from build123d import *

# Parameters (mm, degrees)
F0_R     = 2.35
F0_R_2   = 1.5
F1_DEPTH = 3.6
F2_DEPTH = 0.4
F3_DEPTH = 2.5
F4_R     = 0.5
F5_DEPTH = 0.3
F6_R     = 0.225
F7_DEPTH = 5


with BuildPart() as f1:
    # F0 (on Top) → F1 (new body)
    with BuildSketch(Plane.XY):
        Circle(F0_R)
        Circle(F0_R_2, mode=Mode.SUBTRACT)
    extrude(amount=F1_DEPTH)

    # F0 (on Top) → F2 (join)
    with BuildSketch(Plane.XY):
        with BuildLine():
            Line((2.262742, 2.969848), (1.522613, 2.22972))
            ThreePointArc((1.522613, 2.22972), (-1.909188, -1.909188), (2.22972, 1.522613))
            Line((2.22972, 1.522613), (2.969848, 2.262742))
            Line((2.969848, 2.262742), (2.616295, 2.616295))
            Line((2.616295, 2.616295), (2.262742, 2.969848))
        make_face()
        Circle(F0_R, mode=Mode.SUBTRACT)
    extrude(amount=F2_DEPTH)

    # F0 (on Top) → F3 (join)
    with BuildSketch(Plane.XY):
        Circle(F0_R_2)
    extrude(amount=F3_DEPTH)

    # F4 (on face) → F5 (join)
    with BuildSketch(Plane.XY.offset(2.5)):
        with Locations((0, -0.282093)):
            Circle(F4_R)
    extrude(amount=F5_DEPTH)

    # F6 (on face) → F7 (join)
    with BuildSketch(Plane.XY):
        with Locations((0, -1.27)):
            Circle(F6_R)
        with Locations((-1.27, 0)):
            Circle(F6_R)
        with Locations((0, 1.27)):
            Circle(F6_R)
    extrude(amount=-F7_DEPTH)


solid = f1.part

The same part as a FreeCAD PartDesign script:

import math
import FreeCAD as App
import Part
import Sketcher
from FreeCAD import Vector
Q = App.Units.Quantity

doc = App.newDocument("Part")
params = doc.addObject("Spreadsheet::Sheet", "Params")
for row, (alias, value) in enumerate([
    ("sketch1_diameter", "3 mm"),
    ("sketch1_diameter2", "4.7 mm"),
    ("pad1_length", "3.6 mm"),
    ("sketch2_diameter", "4.7 mm"),
    ("sketch2_radius", "2.7 mm"),
    ("sketch2_length", "0.999999 mm"),
    ("pad2_length", "0.4 mm"),
    ("sketch3_diameter", "3 mm"),
    ("pad3_length", "2.5 mm"),
    ("sketch4_diameter", "1 mm"),
    ("pad4_length", "0.3 mm"),
    ("sketch5_diameter", "0.45 mm"),
    ("pad5_length", "5 mm"),
], start=1):
    params.set(f"A{row}", alias)
    params.set(f"B{row}", "=" + value)
    params.setAlias(f"B{row}", alias)

body = doc.addObject("PartDesign::Body", "Body")

# Sketch on XY plane
sketch1 = doc.addObject("Sketcher::SketchObject", "Sketch")
body.addObject(sketch1)
sketch1.AttachmentSupport = (doc.XY_Plane, [""])
sketch1.MapMode = "FlatFace"
sketch1.addGeometry([
    Part.Circle(Vector(0, 0, 0), Vector(0, 0, 1), 2.4),
    Part.Circle(Vector(0, 0, 0), Vector(0, 0, 1), 1.5),
], False)
sketch1.addConstraint([
    Sketcher.Constraint("Coincident", 0, 3, -1, 1),
    Sketcher.Constraint("Coincident", 1, 3, -1, 1),
    Sketcher.Constraint("Diameter", 1, Q("3 mm")),
    Sketcher.Constraint("Diameter", 0, Q("4.7 mm")),
])
sketch1.setExpression("Constraints[2]", "Params.sketch1_diameter")
sketch1.setExpression("Constraints[3]", "Params.sketch1_diameter2")
pad1 = doc.addObject("PartDesign::Pad", "Pad")
body.addObject(pad1)
pad1.Profile = sketch1
pad1.setExpression("Length", "Params.pad1_length")

# Sketch on XY plane
sketch2 = doc.addObject("Sketcher::SketchObject", "Sketch001")
body.addObject(sketch2)
sketch2.AttachmentSupport = (doc.XY_Plane, [""])
sketch2.MapMode = "FlatFace"
sketch2.addGeometry([
    Part.LineSegment(Vector(2.3, 3, 0), Vector(1.5, 2.2, 0)),  # 0
    Part.ArcOfCircle(Part.Circle(Vector(0, 0, 0), Vector(0, 0, 1), 2.7), math.radians(56), math.radians(394)),  # 1
    Part.LineSegment(Vector(2.2, 1.5, 0), Vector(3, 2.3, 0)),  # 2
    Part.LineSegment(Vector(3, 2.3, 0), Vector(2.3, 3, 0)),  # 3
    Part.Circle(Vector(0, 0, 0), Vector(0, 0, 1), 2.4),  # 4
], False)
sketch2.addConstraint([
    Sketcher.Constraint("Coincident", 0, 2, 1, 1),
    Sketcher.Constraint("Coincident", 1, 2, 2, 1),
    Sketcher.Constraint("Coincident", 2, 2, 3, 1),
    Sketcher.Constraint("Coincident", 3, 2, 0, 1),
    Sketcher.Constraint("Coincident", 1, 3, -1, 1),
    Sketcher.Constraint("Coincident", 4, 3, -1, 1),
    Sketcher.Constraint("Parallel", 0, 2),
    Sketcher.Constraint("Perpendicular", 2, 3),
    Sketcher.Constraint("Equal", 0, 2),
    Sketcher.Constraint("Diameter", 4, Q("4.7 mm")),
    Sketcher.Constraint("Radius", 1, Q("2.7 mm")),
    Sketcher.Constraint("Angle", 3, Q("135 deg")),
    Sketcher.Constraint("Distance", 3, Q("0.999999 mm")),
    Sketcher.Constraint("Distance", 0, Q("1.0467 mm")),
])
sketch2.setExpression("Constraints[9]", "Params.sketch2_diameter")
sketch2.setExpression("Constraints[10]", "Params.sketch2_radius")
sketch2.setExpression("Constraints[12]", "Params.sketch2_length")
pad2 = doc.addObject("PartDesign::Pad", "Pad001")
body.addObject(pad2)
pad2.Profile = sketch2
pad2.setExpression("Length", "Params.pad2_length")

# Sketch on XY plane
sketch3 = doc.addObject("Sketcher::SketchObject", "Sketch002")
body.addObject(sketch3)
sketch3.AttachmentSupport = (doc.XY_Plane, [""])
sketch3.MapMode = "FlatFace"
sketch3.addGeometry(Part.Circle(Vector(0, 0, 0), Vector(0, 0, 1), 1.5), False)
sketch3.addConstraint([
    Sketcher.Constraint("Coincident", 0, 3, -1, 1),
    Sketcher.Constraint("Diameter", 0, Q("3 mm")),
])
sketch3.setExpression("Constraints[1]", "Params.sketch3_diameter")
pad3 = doc.addObject("PartDesign::Pad", "Pad002")
body.addObject(pad3)
pad3.Profile = sketch3
pad3.setExpression("Length", "Params.pad3_length")

# Sketch on XY plane
sketch4 = doc.addObject("Sketcher::SketchObject", "Sketch003")
body.addObject(sketch4)
sketch4.AttachmentSupport = (doc.XY_Plane, [""])
sketch4.MapMode = "FlatFace"
sketch4.AttachmentOffset = App.Placement(Vector(0, 0, 2.5), App.Rotation())
sketch4.addGeometry(Part.Circle(Vector(0, -0.3, 0), Vector(0, 0, 1), 0.5), False)
sketch4.addConstraint([
    Sketcher.Constraint("PointOnObject", 0, 3, -2),
    Sketcher.Constraint("Diameter", 0, Q("1 mm")),
    Sketcher.Constraint("DistanceY", 0, 3, -1, 1, Q("0.282093 mm")),
])
sketch4.setExpression("Constraints[1]", "Params.sketch4_diameter")
pad4 = doc.addObject("PartDesign::Pad", "Pad003")
body.addObject(pad4)
pad4.Profile = sketch4
pad4.setExpression("Length", "Params.pad4_length")

# Sketch on XY plane
sketch5 = doc.addObject("Sketcher::SketchObject", "Sketch004")
body.addObject(sketch5)
sketch5.AttachmentSupport = (doc.XY_Plane, [""])
sketch5.MapMode = "FlatFace"
sketch5.addGeometry([
    Part.Circle(Vector(0, -1.27, 0), Vector(0, 0, 1), 0.23),
    Part.Circle(Vector(-1.27, 0, 0), Vector(0, 0, 1), 0.23),
    Part.Circle(Vector(0, 1.27, 0), Vector(0, 0, 1), 0.23),
], False)
sketch5.addConstraint([
    Sketcher.Constraint("Equal", 0, 1),
    Sketcher.Constraint("Equal", 1, 2),
    Sketcher.Constraint("Symmetric", 0, 3, 2, 3, -1, 1),
    Sketcher.Constraint("PointOnObject", 0, 3, -2),
    Sketcher.Constraint("PointOnObject", 1, 3, -1),
    Sketcher.Constraint("Diameter", 0, Q("0.45 mm")),
    Sketcher.Constraint("DistanceY", 0, 3, -1, 1, Q("1.27 mm")),
    Sketcher.Constraint("DistanceX", 1, 3, -1, 1, Q("1.27 mm")),
])
sketch5.setExpression("Constraints[5]", "Params.sketch5_diameter")
pad5 = doc.addObject("PartDesign::Pad", "Pad004")
body.addObject(pad5)
pad5.Profile = sketch5
pad5.setExpression("Length", "Params.pad5_length")
pad5.Reversed = True

doc.recompute()
